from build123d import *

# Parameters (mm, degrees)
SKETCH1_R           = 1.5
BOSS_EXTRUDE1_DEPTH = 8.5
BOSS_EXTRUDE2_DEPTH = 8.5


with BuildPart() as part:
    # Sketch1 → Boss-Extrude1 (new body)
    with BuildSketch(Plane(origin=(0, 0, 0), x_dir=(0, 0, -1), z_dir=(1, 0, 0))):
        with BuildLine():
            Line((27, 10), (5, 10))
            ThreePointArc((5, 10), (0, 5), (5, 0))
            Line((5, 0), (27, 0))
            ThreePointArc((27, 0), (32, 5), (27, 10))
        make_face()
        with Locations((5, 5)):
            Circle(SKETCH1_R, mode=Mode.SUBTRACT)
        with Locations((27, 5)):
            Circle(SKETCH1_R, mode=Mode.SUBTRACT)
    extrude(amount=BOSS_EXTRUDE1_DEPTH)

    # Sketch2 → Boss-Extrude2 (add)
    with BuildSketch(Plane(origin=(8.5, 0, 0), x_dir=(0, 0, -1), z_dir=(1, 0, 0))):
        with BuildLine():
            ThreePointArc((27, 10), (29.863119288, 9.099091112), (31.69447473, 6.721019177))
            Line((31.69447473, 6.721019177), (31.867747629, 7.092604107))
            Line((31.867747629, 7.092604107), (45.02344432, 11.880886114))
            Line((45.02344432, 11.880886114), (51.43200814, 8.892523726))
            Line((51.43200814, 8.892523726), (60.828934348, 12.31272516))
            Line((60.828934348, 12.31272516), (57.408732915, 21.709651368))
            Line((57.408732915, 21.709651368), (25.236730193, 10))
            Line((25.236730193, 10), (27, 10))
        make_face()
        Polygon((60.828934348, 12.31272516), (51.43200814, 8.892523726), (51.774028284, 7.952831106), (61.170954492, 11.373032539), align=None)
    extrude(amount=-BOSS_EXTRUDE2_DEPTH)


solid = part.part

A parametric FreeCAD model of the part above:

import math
import FreeCAD as App
import Part
import Sketcher

V = App.Vector
Q = App.Units.Quantity

doc = App.newDocument("Part")
body = doc.addObject("PartDesign::Body", "Body")

# Sketch on YZ plane
sketch1 = body.newObject("Sketcher::SketchObject", "Sketch")
sketch1.AttachmentSupport = (doc.getObject("YZ_Plane"), [""])
sketch1.MapMode = "FlatFace"
sketch1.addGeometry([
    Part.LineSegment(V(10, -27, 0), V(10, -5, 0)),  # 0
    Part.ArcOfCircle(Part.Circle(V(5, -5, 0), V(0, 0, 1), 5), math.radians(0), math.radians(180)),  # 1
    Part.LineSegment(V(0, -5, 0), V(0, -27, 0)),  # 2
    Part.ArcOfCircle(Part.Circle(V(5, -27, 0), V(0, 0, 1), 5), math.radians(180), math.radians(360)),  # 3
    Part.Circle(V(5, -5, 0), V(0, 0, 1), 1.5),  # 4
    Part.Circle(V(5, -27, 0), V(0, 0, 1), 1.5),  # 5
], False)
sketch1.addConstraint([
    Sketcher.Constraint("Tangent", 0, 2, 1, 1),
    Sketcher.Constraint("Tangent", 1, 2, 2, 1),
    Sketcher.Constraint("Tangent", 2, 2, 3, 1),
    Sketcher.Constraint("Tangent", 3, 2, 0, 1),
    Sketcher.Constraint("Vertical", 0),
    Sketcher.Constraint("Vertical", 2),
    Sketcher.Constraint("Coincident", 4, 3, 1, 3),
    Sketcher.Constraint("Coincident", 5, 3, 3, 3),
    Sketcher.Constraint("Equal", 4, 5),
    Sketcher.Constraint("PointOnObject", 1, 2, -2),
    Sketcher.Constraint("Diameter", 4, Q("3 mm")),
    Sketcher.Constraint("Radius", 1, Q("5 mm")),
    Sketcher.Constraint("DistanceY", 0, 1, 0, 2, Q("22 mm")),
    Sketcher.Constraint("DistanceY", 1, 3, -1, 1, Q("5 mm")),
])
pad1 = body.newObject("PartDesign::Pad", "Pad")
pad1.Profile = sketch1
pad1.Length = 8.5

# Sketch on YZ plane
sketch2 = body.newObject("Sketcher::SketchObject", "Sketch001")
sketch2.AttachmentSupport = (doc.getObject("YZ_Plane"), [""])
sketch2.MapMode = "FlatFace"
sketch2.AttachmentOffset = App.Placement(V(0, 0, 8.5), App.Rotation())
sketch2.addGeometry([
    Part.ArcOfCircle(Part.Circle(V(5, -27, 0), V(0, 0, 1), 5), math.radians(-70), math.radians(0)),  # 0
    Part.LineSegment(V(6.72, -31.69, 0), V(7.09, -31.87, 0)),  # 1
    Part.LineSegment(V(7.09, -31.87, 0), V(11.88, -45.02, 0)),  # 2
    Part.LineSegment(V(11.88, -45.02, 0), V(8.89, -51.43, 0)),  # 3
    Part.LineSegment(V(8.89, -51.43, 0), V(7.95, -51.77, 0)),  # 4
    Part.LineSegment(V(7.95, -51.77, 0), V(11.37, -61.17, 0)),  # 5
    Part.LineSegment(V(11.37, -61.17, 0), V(12.31, -60.83, 0)),  # 6
    Part.LineSegment(V(12.31, -60.83, 0), V(21.71, -57.41, 0)),  # 7
    Part.LineSegment(V(21.71, -57.41, 0), V(10, -25.24, 0)),  # 8
    Part.LineSegment(V(10, -25.24, 0), V(10, -27, 0)),  # 9
], False)
sketch2.addConstraint([
    Sketcher.Constraint("Coincident", 0, 1, 1, 1),
    Sketcher.Constraint("Coincident", 1, 2, 2, 1),
    Sketcher.Constraint("Coincident", 2, 2, 3, 1),
    Sketcher.Constraint("Coincident", 3, 2, 4, 1),
    Sketcher.Constraint("Coincident", 4, 2, 5, 1),
    Sketcher.Constraint("Coincident", 5, 2, 6, 1),
    Sketcher.Constraint("Coincident", 6, 2, 7, 1),
    Sketcher.Constraint("Coincident", 7, 2, 8, 1),
    Sketcher.Constraint("Coincident", 8, 2, 9, 1),
    Sketcher.Constraint("Tangent", 9, 2, 0, 2),
    Sketcher.Constraint("Vertical", 9),
    Sketcher.Constraint("Perpendicular", 1, 3),
    Sketcher.Constraint("Perpendicular", 2, 4),
    Sketcher.Constraint("Perpendicular", 4, 5),
    Sketcher.Constraint("Perpendicular", 5, 6),
    Sketcher.Constraint("Parallel", 6, 7),
    Sketcher.Constraint("Perpendicular", 7, 8),
    Sketcher.Constraint("Equal", 4, 6),
    Sketcher.Constraint("Equal", 5, 7),
    Sketcher.Constraint("Radius", 0, Q("5 mm")),
    Sketcher.Constraint("Angle", 1, Q("-25 deg")),
    Sketcher.Constraint("Angle", 2, Q("-70 deg")),
    Sketcher.Constraint("Distance", 2, Q("14 mm")),
    Sketcher.Constraint("Distance", 4, Q("1 mm")),
    Sketcher.Constraint("Distance", 5, Q("10 mm")),
    Sketcher.Constraint("DistanceX", -1, 1, 0, 3, Q("5 mm")),
    Sketcher.Constraint("DistanceY", 0, 3, -1, 1, Q("27 mm")),
    Sketcher.Constraint("Distance", 1, Q("0.409999 mm")),
    Sketcher.Constraint("DistanceY", 9, 2, 9, 1, Q("1.76327 mm")),
    Sketcher.Constraint("Distance", 8, Q("34.23673 mm")),
])
pad2 = body.newObject("PartDesign::Pad", "Pad001")
pad2.Profile = sketch2
pad2.Length = 8.5
pad2.Reversed = True

doc.recompute()
